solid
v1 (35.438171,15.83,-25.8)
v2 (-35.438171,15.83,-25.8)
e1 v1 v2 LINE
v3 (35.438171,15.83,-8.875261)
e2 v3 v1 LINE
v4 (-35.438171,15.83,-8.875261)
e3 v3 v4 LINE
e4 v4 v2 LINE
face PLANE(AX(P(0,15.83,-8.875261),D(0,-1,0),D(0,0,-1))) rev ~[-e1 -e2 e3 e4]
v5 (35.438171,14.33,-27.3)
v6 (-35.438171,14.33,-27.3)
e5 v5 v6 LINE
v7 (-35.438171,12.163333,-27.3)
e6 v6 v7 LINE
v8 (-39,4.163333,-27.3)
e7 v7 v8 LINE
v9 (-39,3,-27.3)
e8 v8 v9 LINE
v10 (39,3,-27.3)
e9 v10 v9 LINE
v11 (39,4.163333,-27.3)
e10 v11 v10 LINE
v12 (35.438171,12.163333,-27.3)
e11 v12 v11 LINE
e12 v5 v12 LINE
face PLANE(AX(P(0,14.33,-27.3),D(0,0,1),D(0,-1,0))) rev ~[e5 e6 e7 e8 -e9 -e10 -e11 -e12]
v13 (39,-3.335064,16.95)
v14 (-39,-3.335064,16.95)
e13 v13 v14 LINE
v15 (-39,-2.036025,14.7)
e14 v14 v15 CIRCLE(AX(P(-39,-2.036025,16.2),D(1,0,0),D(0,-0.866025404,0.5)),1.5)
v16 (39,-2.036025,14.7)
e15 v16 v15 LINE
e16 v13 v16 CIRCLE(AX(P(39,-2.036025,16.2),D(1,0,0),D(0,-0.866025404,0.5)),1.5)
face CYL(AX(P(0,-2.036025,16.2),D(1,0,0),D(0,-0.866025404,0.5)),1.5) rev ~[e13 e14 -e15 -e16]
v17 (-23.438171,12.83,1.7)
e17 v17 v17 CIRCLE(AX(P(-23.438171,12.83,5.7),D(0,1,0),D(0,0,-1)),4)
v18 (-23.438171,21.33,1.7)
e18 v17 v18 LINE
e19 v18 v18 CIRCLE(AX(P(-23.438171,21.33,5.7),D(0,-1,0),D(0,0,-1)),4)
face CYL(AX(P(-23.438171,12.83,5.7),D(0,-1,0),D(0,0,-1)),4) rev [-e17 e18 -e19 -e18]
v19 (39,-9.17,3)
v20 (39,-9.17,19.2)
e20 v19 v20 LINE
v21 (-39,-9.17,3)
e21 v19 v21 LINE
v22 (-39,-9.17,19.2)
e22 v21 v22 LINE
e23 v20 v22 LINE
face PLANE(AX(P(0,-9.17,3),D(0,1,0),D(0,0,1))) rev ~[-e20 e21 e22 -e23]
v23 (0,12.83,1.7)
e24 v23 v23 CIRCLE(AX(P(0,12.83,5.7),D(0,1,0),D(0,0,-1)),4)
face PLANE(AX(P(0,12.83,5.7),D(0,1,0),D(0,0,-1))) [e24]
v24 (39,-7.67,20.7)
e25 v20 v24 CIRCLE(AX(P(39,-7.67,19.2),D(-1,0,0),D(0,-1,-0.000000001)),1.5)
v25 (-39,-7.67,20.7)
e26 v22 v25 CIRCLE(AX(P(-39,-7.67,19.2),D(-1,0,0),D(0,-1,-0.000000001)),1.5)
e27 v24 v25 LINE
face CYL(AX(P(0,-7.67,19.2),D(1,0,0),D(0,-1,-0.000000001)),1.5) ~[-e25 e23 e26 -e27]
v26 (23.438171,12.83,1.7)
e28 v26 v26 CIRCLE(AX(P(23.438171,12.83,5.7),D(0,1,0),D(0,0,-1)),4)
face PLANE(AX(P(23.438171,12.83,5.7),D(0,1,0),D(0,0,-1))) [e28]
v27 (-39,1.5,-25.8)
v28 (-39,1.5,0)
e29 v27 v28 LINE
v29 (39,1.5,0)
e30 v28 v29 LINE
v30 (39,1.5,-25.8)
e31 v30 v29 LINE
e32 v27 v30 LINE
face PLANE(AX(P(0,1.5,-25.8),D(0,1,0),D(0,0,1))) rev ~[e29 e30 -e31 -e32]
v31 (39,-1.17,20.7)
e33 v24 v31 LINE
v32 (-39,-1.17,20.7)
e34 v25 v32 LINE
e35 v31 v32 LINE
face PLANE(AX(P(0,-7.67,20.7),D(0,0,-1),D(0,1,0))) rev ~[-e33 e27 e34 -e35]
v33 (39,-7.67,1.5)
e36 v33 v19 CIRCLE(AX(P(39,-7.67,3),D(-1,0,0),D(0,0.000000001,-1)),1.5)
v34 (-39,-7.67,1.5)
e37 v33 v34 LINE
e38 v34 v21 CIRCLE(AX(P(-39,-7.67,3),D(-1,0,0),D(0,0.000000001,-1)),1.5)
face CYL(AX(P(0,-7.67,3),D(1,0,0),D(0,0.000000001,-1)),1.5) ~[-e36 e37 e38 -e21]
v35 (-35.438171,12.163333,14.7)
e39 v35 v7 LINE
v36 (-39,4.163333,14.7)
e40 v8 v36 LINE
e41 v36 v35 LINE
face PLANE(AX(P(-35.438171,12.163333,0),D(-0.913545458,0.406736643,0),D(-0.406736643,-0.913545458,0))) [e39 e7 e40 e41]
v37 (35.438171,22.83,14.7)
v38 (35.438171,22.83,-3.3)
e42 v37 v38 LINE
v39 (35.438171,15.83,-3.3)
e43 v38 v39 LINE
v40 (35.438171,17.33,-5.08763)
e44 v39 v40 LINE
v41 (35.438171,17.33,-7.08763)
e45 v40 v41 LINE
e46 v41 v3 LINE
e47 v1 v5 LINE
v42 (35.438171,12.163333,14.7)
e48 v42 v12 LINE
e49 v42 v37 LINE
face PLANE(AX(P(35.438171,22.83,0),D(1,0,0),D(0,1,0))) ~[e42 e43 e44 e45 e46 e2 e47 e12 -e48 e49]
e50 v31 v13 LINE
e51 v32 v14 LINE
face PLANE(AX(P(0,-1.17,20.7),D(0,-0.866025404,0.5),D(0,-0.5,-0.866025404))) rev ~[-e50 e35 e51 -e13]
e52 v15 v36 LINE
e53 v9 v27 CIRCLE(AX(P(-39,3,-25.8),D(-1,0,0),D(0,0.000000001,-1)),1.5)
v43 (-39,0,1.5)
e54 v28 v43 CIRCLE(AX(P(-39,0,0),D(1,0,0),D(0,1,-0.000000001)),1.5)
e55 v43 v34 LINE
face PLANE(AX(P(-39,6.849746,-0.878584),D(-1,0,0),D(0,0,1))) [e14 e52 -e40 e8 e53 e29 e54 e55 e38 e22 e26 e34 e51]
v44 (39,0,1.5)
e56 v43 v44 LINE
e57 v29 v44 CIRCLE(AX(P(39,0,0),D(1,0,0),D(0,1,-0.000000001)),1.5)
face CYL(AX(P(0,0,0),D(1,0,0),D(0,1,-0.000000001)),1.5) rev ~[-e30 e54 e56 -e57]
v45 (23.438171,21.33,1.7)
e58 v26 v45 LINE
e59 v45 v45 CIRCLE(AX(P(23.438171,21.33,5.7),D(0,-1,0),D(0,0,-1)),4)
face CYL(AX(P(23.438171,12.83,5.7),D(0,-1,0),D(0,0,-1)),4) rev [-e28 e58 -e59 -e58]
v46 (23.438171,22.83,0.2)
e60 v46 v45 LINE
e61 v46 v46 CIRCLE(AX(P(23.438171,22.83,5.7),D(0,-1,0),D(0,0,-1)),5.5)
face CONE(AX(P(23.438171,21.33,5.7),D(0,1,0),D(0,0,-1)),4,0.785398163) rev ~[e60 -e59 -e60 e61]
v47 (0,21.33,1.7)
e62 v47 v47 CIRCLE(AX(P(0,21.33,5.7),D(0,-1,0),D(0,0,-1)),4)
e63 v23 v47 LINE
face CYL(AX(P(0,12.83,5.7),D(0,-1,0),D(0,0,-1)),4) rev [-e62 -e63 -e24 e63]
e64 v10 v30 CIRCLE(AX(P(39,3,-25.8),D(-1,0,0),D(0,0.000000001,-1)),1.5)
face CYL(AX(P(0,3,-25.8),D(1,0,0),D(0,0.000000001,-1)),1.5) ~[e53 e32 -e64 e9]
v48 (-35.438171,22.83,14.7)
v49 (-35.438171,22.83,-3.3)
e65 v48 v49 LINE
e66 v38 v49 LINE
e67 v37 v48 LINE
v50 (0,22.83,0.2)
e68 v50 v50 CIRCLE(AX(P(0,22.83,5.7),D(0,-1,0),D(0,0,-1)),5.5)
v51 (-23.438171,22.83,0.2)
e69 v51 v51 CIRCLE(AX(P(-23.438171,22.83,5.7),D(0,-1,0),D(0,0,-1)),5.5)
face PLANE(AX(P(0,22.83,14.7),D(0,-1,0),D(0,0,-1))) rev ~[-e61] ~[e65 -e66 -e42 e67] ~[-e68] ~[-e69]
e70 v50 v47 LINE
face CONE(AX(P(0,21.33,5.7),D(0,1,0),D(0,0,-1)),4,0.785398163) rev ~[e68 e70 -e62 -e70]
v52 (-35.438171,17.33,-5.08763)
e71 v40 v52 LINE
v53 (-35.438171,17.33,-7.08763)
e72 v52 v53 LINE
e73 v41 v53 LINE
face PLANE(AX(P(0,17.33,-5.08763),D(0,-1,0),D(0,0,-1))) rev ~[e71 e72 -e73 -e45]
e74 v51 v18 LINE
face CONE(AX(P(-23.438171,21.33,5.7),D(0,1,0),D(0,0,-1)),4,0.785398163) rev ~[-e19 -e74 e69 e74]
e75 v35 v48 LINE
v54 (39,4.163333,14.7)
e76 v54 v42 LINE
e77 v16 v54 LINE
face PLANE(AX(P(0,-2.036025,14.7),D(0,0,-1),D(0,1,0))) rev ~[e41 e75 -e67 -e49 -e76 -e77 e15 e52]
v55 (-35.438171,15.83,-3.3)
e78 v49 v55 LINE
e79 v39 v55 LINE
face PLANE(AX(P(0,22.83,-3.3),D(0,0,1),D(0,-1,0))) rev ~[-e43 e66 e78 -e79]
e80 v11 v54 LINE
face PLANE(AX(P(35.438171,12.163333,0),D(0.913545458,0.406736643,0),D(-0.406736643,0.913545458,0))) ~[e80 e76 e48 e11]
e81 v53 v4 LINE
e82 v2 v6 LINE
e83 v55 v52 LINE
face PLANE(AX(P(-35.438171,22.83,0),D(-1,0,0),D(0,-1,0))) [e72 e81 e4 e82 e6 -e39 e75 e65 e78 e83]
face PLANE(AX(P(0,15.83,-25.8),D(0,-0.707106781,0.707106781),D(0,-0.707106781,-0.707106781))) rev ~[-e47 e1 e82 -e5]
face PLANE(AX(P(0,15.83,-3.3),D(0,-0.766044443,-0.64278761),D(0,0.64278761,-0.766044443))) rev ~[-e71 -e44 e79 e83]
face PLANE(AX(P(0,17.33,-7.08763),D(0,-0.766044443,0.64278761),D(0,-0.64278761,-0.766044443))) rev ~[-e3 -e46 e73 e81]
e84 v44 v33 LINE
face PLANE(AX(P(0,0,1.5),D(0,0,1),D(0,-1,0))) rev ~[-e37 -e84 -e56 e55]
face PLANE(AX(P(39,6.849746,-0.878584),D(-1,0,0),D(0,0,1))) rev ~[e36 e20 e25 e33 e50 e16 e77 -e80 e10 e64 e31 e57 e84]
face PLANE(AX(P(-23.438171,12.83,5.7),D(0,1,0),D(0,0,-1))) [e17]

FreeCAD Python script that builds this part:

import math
import FreeCAD as App
import Part
import Sketcher
Q = App.Units.Quantity


def edges_at(feature, points):
    """Names of the edges that pass closest to the given points."""
    edges = feature.Shape.Edges
    near = lambda p: min(range(len(edges)), key=lambda i: edges[i].distToShape(Part.Vertex(*p))[0])
    return sorted({f"Edge{near(p) + 1}" for p in points})

doc = App.newDocument("Part")
params = doc.addObject("Spreadsheet::Sheet", "Params")
for row, (alias, value) in enumerate([
    ("sketch1_radius", "1.5 mm"),
    ("sketch1_width", "7 mm"),
    ("sketch1_height", "2 mm"),
    ("sketch1_height2", "18 mm"),
    ("sketch1_width2", "6.5 mm"),
    ("pad1_length", "78 mm"),
    ("pocket1_length", "107.59354 mm"),
    ("sketch3_diameter", "8 mm"),
    ("pocket2_length", "58.36105 mm"),
    ("pocket2_length2", "10 mm"),
    ("chamfer_size", "1.5 mm"),
], start=1):
    params.set(f"A{row}", alias)
    params.set(f"B{row}", "=" + value)
    params.setAlias(f"B{row}", alias)

body = doc.addObject("PartDesign::Body", "Body")

# Sketch on YZ plane
sketch1 = doc.addObject("Sketcher::SketchObject", "Sketch")
body.addObject(sketch1)
sketch1.AttachmentSupport = (doc.YZ_Plane, [""])
sketch1.MapMode = "FlatFace"
sketch1.addGeometry([
    Part.LineSegment(App.Vector(-7.7, 1.5, 0), App.Vector(0, 1.5, 0)),  # 0
    Part.ArcOfCircle(Part.Circle(App.Vector(0, 0, 0), App.Vector(0, 0, 1), 1.5), math.radians(0), math.radians(90)),  # 1
    Part.LineSegment(App.Vector(1.5, 0, 0), App.Vector(1.5, -25.8, 0)),  # 2
    Part.ArcOfCircle(Part.Circle(App.Vector(3, -25.8, 0), App.Vector(0, 0, 1), 1.5), math.radians(180), math.radians(270)),  # 3
    Part.LineSegment(App.Vector(3, -27.3, 0), App.Vector(14.3, -27.3, 0)),  # 4
    Part.LineSegment(App.Vector(14.3, -27.3, 0), App.Vector(15.8, -25.8, 0)),  # 5
    Part.LineSegment(App.Vector(15.8, -25.8, 0), App.Vector(15.8, -8.9, 0)),  # 6
    Part.LineSegment(App.Vector(15.8, -8.9, 0), App.Vector(17.3, -7.1, 0)),  # 7
    Part.LineSegment(App.Vector(17.3, -7.1, 0), App.Vector(17.3, -5.1, 0)),  # 8
    Part.LineSegment(App.Vector(17.3, -5.1, 0), App.Vector(15.8, -3.3, 0)),  # 9
    Part.LineSegment(App.Vector(15.8, -3.3, 0), App.Vector(22.8, -3.3, 0)),  # 10
    Part.LineSegment(App.Vector(22.8, -3.3, 0), App.Vector(22.8, 14.7, 0)),  # 11
    Part.LineSegment(App.Vector(22.8, 14.7, 0), App.Vector(-2, 14.7, 0)),  # 12
    Part.ArcOfCircle(Part.Circle(App.Vector(-2, 16.2, 0), App.Vector(0, 0, 1), 1.5), math.radians(150), math.radians(270)),  # 13
    Part.LineSegment(App.Vector(-3.3, 16.9, 0), App.Vector(-1.2, 20.7, 0)),  # 14
    Part.LineSegment(App.Vector(-1.2, 20.7, 0), App.Vector(-7.7, 20.7, 0)),  # 15
    Part.ArcOfCircle(Part.Circle(App.Vector(-7.7, 19.2, 0), App.Vector(0, 0, 1), 1.5), math.radians(90), math.radians(180)),  # 16
    Part.LineSegment(App.Vector(-9.2, 19.2, 0), App.Vector(-9.2, 3, 0)),  # 17
    Part.ArcOfCircle(Part.Circle(App.Vector(-7.7, 3, 0), App.Vector(0, 0, 1), 1.5), math.radians(180), math.radians(270)),  # 18
], False)
sketch1.addConstraint([
    Sketcher.Constraint("Tangent", 0, 2, 1, 2),
    Sketcher.Constraint("Tangent", 1, 1, 2, 1),
    Sketcher.Constraint("Tangent", 2, 2, 3, 1),
    Sketcher.Constraint("Tangent", 3, 2, 4, 1),
    Sketcher.Constraint("Coincident", 4, 2, 5, 1),
    Sketcher.Constraint("Coincident", 5, 2, 6, 1),
    Sketcher.Constraint("Coincident", 6, 2, 7, 1),
    Sketcher.Constraint("Coincident", 7, 2, 8, 1),
    Sketcher.Constraint("Coincident", 8, 2, 9, 1),
    Sketcher.Constraint("Coincident", 9, 2, 10, 1),
    Sketcher.Constraint("Coincident", 10, 2, 11, 1),
    Sketcher.Constraint("Coincident", 11, 2, 12, 1),
    Sketcher.Constraint("Tangent", 12, 2, 13, 2),
    Sketcher.Constraint("Tangent", 13, 1, 14, 1),
    Sketcher.Constraint("Coincident", 14, 2, 15, 1),
    Sketcher.Constraint("Tangent", 15, 2, 16, 1),
    Sketcher.Constraint("Tangent", 16, 2, 17, 1),
    Sketcher.Constraint("Tangent", 17, 2, 18, 1),
    Sketcher.Constraint("Tangent", 18, 2, 0, 1),
    Sketcher.Constraint("Horizontal", 0),
    Sketcher.Constraint("Vertical", 2),
    Sketcher.Constraint("Horizontal", 4),
    Sketcher.Constraint("Vertical", 6),
    Sketcher.Constraint("Vertical", 8),
    Sketcher.Constraint("Horizontal", 10),
    Sketcher.Constraint("Vertical", 11),
    Sketcher.Constraint("Horizontal", 12),
    Sketcher.Constraint("Horizontal", 15),
    Sketcher.Constraint("Vertical", 17),
    Sketcher.Constraint("Coincident", 1, 3, -1, 1),
    Sketcher.Constraint("Equal", 1, 3),
    Sketcher.Constraint("Equal", 3, 13),
    Sketcher.Constraint("Equal", 13, 16),
    Sketcher.Constraint("Equal", 16, 18),
    Sketcher.Constraint("Horizontal", 2, 2, 5, 2),
    Sketcher.Constraint("Vertical", 6, 2, 9, 2),
    Sketcher.Constraint("Equal", 7, 9),
    Sketcher.Constraint("Radius", 1, 1.5),
    Sketcher.Constraint("DistanceX", 10, 1, 10, 2, 7.0),
    Sketcher.Constraint("DistanceY", 8, 1, 8, 2, 2.0),
    Sketcher.Constraint("DistanceY", 11, 1, 11, 2, 18.0),
    Sketcher.Constraint("Angle", 5, Q("45 deg")),
    Sketcher.Constraint("Angle", 7, Q("50 deg")),
    Sketcher.Constraint("Angle", 14, Q("60 deg")),
    Sketcher.Constraint("DistanceX", 15, 2, 15, 1, 6.5),
    Sketcher.Constraint("DistanceY", 2, 2, 2, 1, 25.8),
    Sketcher.Constraint("DistanceY", 17, 2, 17, 1, 16.2),
    Sketcher.Constraint("DistanceY", 3, 3, 13, 3, 42.0),
    Sketcher.Constraint("DistanceX", 0, 1, 0, 2, 7.67),
    Sketcher.Constraint("DistanceX", 4, 1, 4, 2, 11.33),
    Sketcher.Constraint("DistanceX", 6, 2, 7, 2, 1.5),
])
sketch1.setExpression("Constraints[37]", "Params.sketch1_radius")
sketch1.setExpression("Constraints[38]", "Params.sketch1_width")
sketch1.setExpression("Constraints[39]", "Params.sketch1_height")
sketch1.setExpression("Constraints[40]", "Params.sketch1_height2")
sketch1.setExpression("Constraints[44]", "Params.sketch1_width2")
pad1 = doc.addObject("PartDesign::Pad", "Pad")
body.addObject(pad1)
pad1.Profile = sketch1
pad1.setExpression("Length", "Params.pad1_length")
pad1.Midplane = True

# Sketch on XY plane
sketch2 = doc.addObject("Sketcher::SketchObject", "Sketch001")
body.addObject(sketch2)
sketch2.AttachmentSupport = (doc.XY_Plane, [""])
sketch2.MapMode = "FlatFace"
sketch2.addGeometry([
    Part.LineSegment(App.Vector(-35.4, 22.8, 0), App.Vector(-39, 22.8, 0)),
    Part.LineSegment(App.Vector(-39, 22.8, 0), App.Vector(-39, 4.2, 0)),
    Part.LineSegment(App.Vector(-39, 4.2, 0), App.Vector(-35.4, 12.2, 0)),
    Part.LineSegment(App.Vector(-35.4, 12.2, 0), App.Vector(-35.4, 22.8, 0)),
], False)
sketch2.addConstraint([
    Sketcher.Constraint("Coincident", 0, 2, 1, 1),
    Sketcher.Constraint("Coincident", 1, 2, 2, 1),
    Sketcher.Constraint("Coincident", 2, 2, 3, 1),
    Sketcher.Constraint("Coincident", 3, 2, 0, 1),
    Sketcher.Constraint("Horizontal", 0),
    Sketcher.Constraint("Vertical", 1),
    Sketcher.Constraint("Vertical", 3),
    Sketcher.Constraint("Angle", 2, Q("66 deg")),
    Sketcher.Constraint("DistanceX", 0, 2, -1, 1, 39.0),
    Sketcher.Constraint("DistanceY", 1, 2, 2, 2, 8.0),
    Sketcher.Constraint("DistanceY", -1, 1, 0, 2, 22.83),
    Sketcher.Constraint("DistanceY", 1, 2, 1, 1, 18.666667),
])
pocket1 = doc.addObject("PartDesign::Pocket", "Pocket")
body.addObject(pocket1)
pocket1.Profile = sketch2
pocket1.setExpression("Length", "Params.pocket1_length")
pocket1.Midplane = True
doc.recompute()

mirrored = doc.addObject("PartDesign::Mirrored", "Mirrored")
body.addObject(mirrored)
mirrored.Originals = [pocket1]
mirrored.MirrorPlane = (doc.YZ_Plane, [""])
body.Tip = mirrored

# Sketch on XZ plane
sketch3 = doc.addObject("Sketcher::SketchObject", "Sketch002")
body.addObject(sketch3)
sketch3.AttachmentSupport = (doc.XZ_Plane, [""])
sketch3.MapMode = "FlatFace"
sketch3.AttachmentOffset = App.Placement(App.Vector(0, 0, -22.83), App.Rotation())
sketch3.addGeometry([
    Part.Circle(App.Vector(23.4, 5.7, 0), App.Vector(0, 0, 1), 4),
    Part.Circle(App.Vector(0, 5.7, 0), App.Vector(0, 0, 1), 4),
    Part.Circle(App.Vector(-23.4, 5.7, 0), App.Vector(0, 0, 1), 4),
], False)
sketch3.addConstraint([
    Sketcher.Constraint("Equal", 0, 1),
    Sketcher.Constraint("Equal", 1, 2),
    Sketcher.Constraint("Symmetric", 0, 3, 2, 3, -2),
    Sketcher.Constraint("PointOnObject", 1, 3, -2),
    Sketcher.Constraint("Horizontal", 0, 3, 1, 3),
    Sketcher.Constraint("Diameter", 0, 8.0),
    Sketcher.Constraint("DistanceY", -1, 1, 0, 3, 5.7),
    Sketcher.Constraint("DistanceX", -1, 1, 0, 3, 23.438171),
])
sketch3.setExpression("Constraints[5]", "Params.sketch3_diameter")
pocket2 = doc.addObject("PartDesign::Pocket", "Pocket001")
body.addObject(pocket2)
pocket2.Profile = sketch3
pocket2.Type = "TwoLengths"
pocket2.setExpression("Length", "Params.pocket2_length")
pocket2.setExpression("Length2", "Params.pocket2_length2")
doc.recompute()

chamfer = doc.addObject("PartDesign::Chamfer", "Chamfer")
body.addObject(chamfer)
chamfer.Base = (pocket2, edges_at(pocket2, [(23.438, 22.83, 9.7), (0, 22.83, 9.7), (-23.438, 22.83, 9.7)]))
chamfer.setExpression("Size", "Params.chamfer_size")

doc.recompute()
